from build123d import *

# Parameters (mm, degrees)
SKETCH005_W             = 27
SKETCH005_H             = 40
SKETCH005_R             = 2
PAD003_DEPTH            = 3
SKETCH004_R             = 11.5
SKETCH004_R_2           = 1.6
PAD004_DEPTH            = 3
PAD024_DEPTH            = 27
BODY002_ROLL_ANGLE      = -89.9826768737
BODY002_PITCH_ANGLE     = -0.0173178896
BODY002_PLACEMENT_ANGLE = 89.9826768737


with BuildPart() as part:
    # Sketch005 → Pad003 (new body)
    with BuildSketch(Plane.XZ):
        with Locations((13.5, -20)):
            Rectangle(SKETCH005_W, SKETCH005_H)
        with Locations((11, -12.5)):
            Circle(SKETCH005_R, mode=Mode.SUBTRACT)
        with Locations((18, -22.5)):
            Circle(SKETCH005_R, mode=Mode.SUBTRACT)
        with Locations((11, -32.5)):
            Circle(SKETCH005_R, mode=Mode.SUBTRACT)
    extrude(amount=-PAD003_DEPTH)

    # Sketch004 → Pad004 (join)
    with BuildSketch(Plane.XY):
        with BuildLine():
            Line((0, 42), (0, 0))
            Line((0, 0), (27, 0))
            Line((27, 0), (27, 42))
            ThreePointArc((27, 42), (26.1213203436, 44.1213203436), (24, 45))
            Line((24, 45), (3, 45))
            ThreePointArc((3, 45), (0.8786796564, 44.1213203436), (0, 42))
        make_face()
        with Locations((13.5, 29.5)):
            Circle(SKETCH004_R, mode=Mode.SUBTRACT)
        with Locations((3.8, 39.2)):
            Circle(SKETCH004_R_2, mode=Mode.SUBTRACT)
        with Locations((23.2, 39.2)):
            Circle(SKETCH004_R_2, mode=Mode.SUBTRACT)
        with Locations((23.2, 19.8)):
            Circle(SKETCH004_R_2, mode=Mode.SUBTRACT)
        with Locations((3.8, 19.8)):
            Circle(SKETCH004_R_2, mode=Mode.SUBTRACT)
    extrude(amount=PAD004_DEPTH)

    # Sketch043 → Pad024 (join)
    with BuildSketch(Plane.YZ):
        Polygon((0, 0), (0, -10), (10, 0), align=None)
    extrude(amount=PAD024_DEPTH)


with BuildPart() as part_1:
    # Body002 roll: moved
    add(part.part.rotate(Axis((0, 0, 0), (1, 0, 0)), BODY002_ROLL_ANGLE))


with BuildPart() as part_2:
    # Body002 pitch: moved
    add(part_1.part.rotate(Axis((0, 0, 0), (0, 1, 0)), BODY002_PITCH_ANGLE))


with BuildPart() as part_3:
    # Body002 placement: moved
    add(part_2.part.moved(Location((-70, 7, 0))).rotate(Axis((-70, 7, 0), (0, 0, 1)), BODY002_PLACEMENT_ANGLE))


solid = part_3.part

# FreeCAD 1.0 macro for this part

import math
import FreeCAD as App
import Part
import Sketcher

V = App.Vector


def add_polygon(sketch, points):
    """Adds a closed chain of lines whose ends are joined by coincident constraints."""
    first, n = sketch.GeometryCount, len(points)
    for a, b in zip(points, points[1:] + points[:1]):
        sketch.addGeometry(Part.LineSegment(App.Vector(*a, 0), App.Vector(*b, 0)), False)
    for i in range(n):
        sketch.addConstraint(Sketcher.Constraint("Coincident", first + i, 2, first + (i + 1) % n, 1))

doc = App.newDocument("Part")
body = doc.addObject("PartDesign::Body", "Body")

# Sketch on XZ plane
sketch1 = body.newObject("Sketcher::SketchObject", "Sketch")
sketch1.AttachmentSupport = (doc.getObject("XZ_Plane"), [""])
sketch1.MapMode = "FlatFace"
add_polygon(sketch1, [(0, 0), (0, -40), (27, -40), (27, 0)])  # lines 0-3
sketch1.addGeometry(Part.Circle(V(11, -32.5, 0), V(0, 0, 1), 2), False)  # 4
sketch1.addGeometry(Part.Circle(V(11, -12.5, 0), V(0, 0, 1), 2), False)  # 5
sketch1.addGeometry(Part.Circle(V(18, -22.5, 0), V(0, 0, 1), 2), False)  # 6
sketch1.addConstraint(Sketcher.Constraint("Vertical", 0))
sketch1.addConstraint(Sketcher.Constraint("Horizontal", 1))
sketch1.addConstraint(Sketcher.Constraint("Vertical", 2))
sketch1.addConstraint(Sketcher.Constraint("Horizontal", 3))
sketch1.addConstraint(Sketcher.Constraint("Coincident", 3, 2, -1, 1))
sketch1.addConstraint(Sketcher.Constraint("Equal", 4, 5))
sketch1.addConstraint(Sketcher.Constraint("Equal", 5, 6))
sketch1.addConstraint(Sketcher.Constraint("Vertical", 4, 3, 5, 3))
sketch1.addConstraint(Sketcher.Constraint("Diameter", 4, 4.0))
sketch1.addConstraint(Sketcher.Constraint("DistanceX", 1, 1, 1, 2, 27.0))
sketch1.addConstraint(Sketcher.Constraint("DistanceY", 0, 2, 0, 1, 40.0))
sketch1.addConstraint(Sketcher.Constraint("DistanceX", -1, 1, 4, 3, 11.0))
sketch1.addConstraint(Sketcher.Constraint("DistanceX", -1, 1, 6, 3, 18.0))
sketch1.addConstraint(Sketcher.Constraint("DistanceY", 4, 3, 5, 3, 20.0))
sketch1.addConstraint(Sketcher.Constraint("DistanceY", 4, 3, 6, 3, 10.0))
sketch1.addConstraint(Sketcher.Constraint("DistanceY", 4, 3, -1, 1, 32.5))
pad1 = body.newObject("PartDesign::Pad", "Pad")
pad1.Profile = sketch1
pad1.Length = 3
pad1.Reversed = True

# Sketch on XY plane
sketch2 = body.newObject("Sketcher::SketchObject", "Sketch001")
sketch2.AttachmentSupport = (doc.getObject("XY_Plane"), [""])
sketch2.MapMode = "FlatFace"
sketch2.addGeometry(Part.LineSegment(V(0, 42, 0), V(0, 0, 0)), False)
sketch2.addGeometry(Part.LineSegment(V(0, 0, 0), V(27, 0, 0)), False)
sketch2.addGeometry(Part.LineSegment(V(27, 0, 0), V(27, 42, 0)), False)
sketch2.addGeometry(Part.ArcOfCircle(Part.Circle(V(24, 42, 0), V(0, 0, 1), 3), math.radians(0), math.radians(90)), False)
sketch2.addGeometry(Part.LineSegment(V(24, 45, 0), V(3, 45, 0)), False)
sketch2.addGeometry(Part.ArcOfCircle(Part.Circle(V(3, 42, 0), V(0, 0, 1), 3), math.radians(90), math.radians(180)), False)
sketch2.addGeometry(Part.Circle(V(3.8, 19.8, 0), V(0, 0, 1), 1.6), False)
sketch2.addGeometry(Part.Circle(V(23.2, 19.8, 0), V(0, 0, 1), 1.6), False)
sketch2.addGeometry(Part.Circle(V(3.8, 39.2, 0), V(0, 0, 1), 1.6), False)
sketch2.addGeometry(Part.Circle(V(13.5, 29.5, 0), V(0, 0, 1), 11.5), False)
sketch2.addGeometry(Part.Circle(V(23.2, 39.2, 0), V(0, 0, 1), 1.6), False)
sketch2.addConstraint(Sketcher.Constraint("Coincident", 0, 2, 1, 1))
sketch2.addConstraint(Sketcher.Constraint("Coincident", 1, 2, 2, 1))
sketch2.addConstraint(Sketcher.Constraint("Tangent", 2, 2, 3, 1))
sketch2.addConstraint(Sketcher.Constraint("Tangent", 3, 2, 4, 1))
sketch2.addConstraint(Sketcher.Constraint("Tangent", 4, 2, 5, 1))
sketch2.addConstraint(Sketcher.Constraint("Tangent", 5, 2, 0, 1))
sketch2.addConstraint(Sketcher.Constraint("Vertical", 0))
sketch2.addConstraint(Sketcher.Constraint("Horizontal", 1))
sketch2.addConstraint(Sketcher.Constraint("Vertical", 2))
sketch2.addConstraint(Sketcher.Constraint("Horizontal", 4))
sketch2.addConstraint(Sketcher.Constraint("Coincident", 0, 2, -1, 1))
sketch2.addConstraint(Sketcher.Constraint("Equal", 3, 5))
sketch2.addConstraint(Sketcher.Constraint("Equal", 6, 7))
sketch2.addConstraint(Sketcher.Constraint("Equal", 7, 8))
sketch2.addConstraint(Sketcher.Constraint("Equal", 8, 10))
sketch2.addConstraint(Sketcher.Constraint("Horizontal", 6, 3, 7, 3))
sketch2.addConstraint(Sketcher.Constraint("Horizontal", 8, 3, 10, 3))
sketch2.addConstraint(Sketcher.Constraint("Vertical", 6, 3, 8, 3))
sketch2.addConstraint(Sketcher.Constraint("Vertical", 7, 3, 10, 3))
sketch2.addConstraint(Sketcher.Constraint("Diameter", 9, 23.0))
sketch2.addConstraint(Sketcher.Constraint("Radius", 3, 3.0))
sketch2.addConstraint(Sketcher.Constraint("Diameter", 6, 3.2))
sketch2.addConstraint(Sketcher.Constraint("DistanceX", 1, 1, 1, 2, 27.0))
sketch2.addConstraint(Sketcher.Constraint("DistanceY", 0, 2, 0, 1, 42.0))
sketch2.addConstraint(Sketcher.Constraint("DistanceX", -1, 1, 6, 3, 3.8))
sketch2.addConstraint(Sketcher.Constraint("DistanceY", -1, 1, 6, 3, 19.8))
sketch2.addConstraint(Sketcher.Constraint("DistanceX", -1, 1, 7, 3, 23.2))
sketch2.addConstraint(Sketcher.Constraint("DistanceY", -1, 1, 8, 3, 39.2))
sketch2.addConstraint(Sketcher.Constraint("DistanceX", -1, 1, 9, 3, 13.5))
sketch2.addConstraint(Sketcher.Constraint("DistanceY", -1, 1, 9, 3, 29.5))
pad2 = body.newObject("PartDesign::Pad", "Pad001")
pad2.Profile = sketch2
pad2.Length = 3

# Sketch on YZ plane
sketch3 = body.newObject("Sketcher::SketchObject", "Sketch002")
sketch3.AttachmentSupport = (doc.getObject("YZ_Plane"), [""])
sketch3.MapMode = "FlatFace"
add_polygon(sketch3, [(0, 0), (0, -10), (10, 0)])  # lines 0-2
sketch3.addConstraint(Sketcher.Constraint("Vertical", 0))
sketch3.addConstraint(Sketcher.Constraint("Horizontal", 2))
sketch3.addConstraint(Sketcher.Constraint("Coincident", 2, 2, -1, 1))
sketch3.addConstraint(Sketcher.Constraint("Equal", 2, 0))
sketch3.addConstraint(Sketcher.Constraint("DistanceX", 2, 2, 2, 1, 10.0))
pad3 = body.newObject("PartDesign::Pad", "Pad002")
pad3.Profile = sketch3
pad3.Length = 27
body2 = doc.addObject("PartDesign::Body", "Body001")
doc.recompute()

body.Placement = App.Placement(V(0, 0, 0), App.Rotation(V(1, 0, 0), 270.017323))
boolean = body2.newObject("PartDesign::Boolean", "Boolean")
boolean.Type = "Fuse"
boolean.addObjects([body])
body3 = doc.addObject("PartDesign::Body", "Body002")
doc.recompute()

body2.Placement = App.Placement(V(0, 0, 0), App.Rotation(V(0, 1, 0), 359.982682))
boolean2 = body3.newObject("PartDesign::Boolean", "Boolean001")
boolean2.Type = "Fuse"
boolean2.addObjects([body2])
body4 = doc.addObject("PartDesign::Body", "Body003")
doc.recompute()

body3.Placement = App.Placement(V(-70, 7, 0), App.Rotation(V(0, 0, 1), 89.982677))
boolean3 = body4.newObject("PartDesign::Boolean", "Boolean002")
boolean3.Type = "Fuse"
boolean3.addObjects([body3])

doc.recompute()
